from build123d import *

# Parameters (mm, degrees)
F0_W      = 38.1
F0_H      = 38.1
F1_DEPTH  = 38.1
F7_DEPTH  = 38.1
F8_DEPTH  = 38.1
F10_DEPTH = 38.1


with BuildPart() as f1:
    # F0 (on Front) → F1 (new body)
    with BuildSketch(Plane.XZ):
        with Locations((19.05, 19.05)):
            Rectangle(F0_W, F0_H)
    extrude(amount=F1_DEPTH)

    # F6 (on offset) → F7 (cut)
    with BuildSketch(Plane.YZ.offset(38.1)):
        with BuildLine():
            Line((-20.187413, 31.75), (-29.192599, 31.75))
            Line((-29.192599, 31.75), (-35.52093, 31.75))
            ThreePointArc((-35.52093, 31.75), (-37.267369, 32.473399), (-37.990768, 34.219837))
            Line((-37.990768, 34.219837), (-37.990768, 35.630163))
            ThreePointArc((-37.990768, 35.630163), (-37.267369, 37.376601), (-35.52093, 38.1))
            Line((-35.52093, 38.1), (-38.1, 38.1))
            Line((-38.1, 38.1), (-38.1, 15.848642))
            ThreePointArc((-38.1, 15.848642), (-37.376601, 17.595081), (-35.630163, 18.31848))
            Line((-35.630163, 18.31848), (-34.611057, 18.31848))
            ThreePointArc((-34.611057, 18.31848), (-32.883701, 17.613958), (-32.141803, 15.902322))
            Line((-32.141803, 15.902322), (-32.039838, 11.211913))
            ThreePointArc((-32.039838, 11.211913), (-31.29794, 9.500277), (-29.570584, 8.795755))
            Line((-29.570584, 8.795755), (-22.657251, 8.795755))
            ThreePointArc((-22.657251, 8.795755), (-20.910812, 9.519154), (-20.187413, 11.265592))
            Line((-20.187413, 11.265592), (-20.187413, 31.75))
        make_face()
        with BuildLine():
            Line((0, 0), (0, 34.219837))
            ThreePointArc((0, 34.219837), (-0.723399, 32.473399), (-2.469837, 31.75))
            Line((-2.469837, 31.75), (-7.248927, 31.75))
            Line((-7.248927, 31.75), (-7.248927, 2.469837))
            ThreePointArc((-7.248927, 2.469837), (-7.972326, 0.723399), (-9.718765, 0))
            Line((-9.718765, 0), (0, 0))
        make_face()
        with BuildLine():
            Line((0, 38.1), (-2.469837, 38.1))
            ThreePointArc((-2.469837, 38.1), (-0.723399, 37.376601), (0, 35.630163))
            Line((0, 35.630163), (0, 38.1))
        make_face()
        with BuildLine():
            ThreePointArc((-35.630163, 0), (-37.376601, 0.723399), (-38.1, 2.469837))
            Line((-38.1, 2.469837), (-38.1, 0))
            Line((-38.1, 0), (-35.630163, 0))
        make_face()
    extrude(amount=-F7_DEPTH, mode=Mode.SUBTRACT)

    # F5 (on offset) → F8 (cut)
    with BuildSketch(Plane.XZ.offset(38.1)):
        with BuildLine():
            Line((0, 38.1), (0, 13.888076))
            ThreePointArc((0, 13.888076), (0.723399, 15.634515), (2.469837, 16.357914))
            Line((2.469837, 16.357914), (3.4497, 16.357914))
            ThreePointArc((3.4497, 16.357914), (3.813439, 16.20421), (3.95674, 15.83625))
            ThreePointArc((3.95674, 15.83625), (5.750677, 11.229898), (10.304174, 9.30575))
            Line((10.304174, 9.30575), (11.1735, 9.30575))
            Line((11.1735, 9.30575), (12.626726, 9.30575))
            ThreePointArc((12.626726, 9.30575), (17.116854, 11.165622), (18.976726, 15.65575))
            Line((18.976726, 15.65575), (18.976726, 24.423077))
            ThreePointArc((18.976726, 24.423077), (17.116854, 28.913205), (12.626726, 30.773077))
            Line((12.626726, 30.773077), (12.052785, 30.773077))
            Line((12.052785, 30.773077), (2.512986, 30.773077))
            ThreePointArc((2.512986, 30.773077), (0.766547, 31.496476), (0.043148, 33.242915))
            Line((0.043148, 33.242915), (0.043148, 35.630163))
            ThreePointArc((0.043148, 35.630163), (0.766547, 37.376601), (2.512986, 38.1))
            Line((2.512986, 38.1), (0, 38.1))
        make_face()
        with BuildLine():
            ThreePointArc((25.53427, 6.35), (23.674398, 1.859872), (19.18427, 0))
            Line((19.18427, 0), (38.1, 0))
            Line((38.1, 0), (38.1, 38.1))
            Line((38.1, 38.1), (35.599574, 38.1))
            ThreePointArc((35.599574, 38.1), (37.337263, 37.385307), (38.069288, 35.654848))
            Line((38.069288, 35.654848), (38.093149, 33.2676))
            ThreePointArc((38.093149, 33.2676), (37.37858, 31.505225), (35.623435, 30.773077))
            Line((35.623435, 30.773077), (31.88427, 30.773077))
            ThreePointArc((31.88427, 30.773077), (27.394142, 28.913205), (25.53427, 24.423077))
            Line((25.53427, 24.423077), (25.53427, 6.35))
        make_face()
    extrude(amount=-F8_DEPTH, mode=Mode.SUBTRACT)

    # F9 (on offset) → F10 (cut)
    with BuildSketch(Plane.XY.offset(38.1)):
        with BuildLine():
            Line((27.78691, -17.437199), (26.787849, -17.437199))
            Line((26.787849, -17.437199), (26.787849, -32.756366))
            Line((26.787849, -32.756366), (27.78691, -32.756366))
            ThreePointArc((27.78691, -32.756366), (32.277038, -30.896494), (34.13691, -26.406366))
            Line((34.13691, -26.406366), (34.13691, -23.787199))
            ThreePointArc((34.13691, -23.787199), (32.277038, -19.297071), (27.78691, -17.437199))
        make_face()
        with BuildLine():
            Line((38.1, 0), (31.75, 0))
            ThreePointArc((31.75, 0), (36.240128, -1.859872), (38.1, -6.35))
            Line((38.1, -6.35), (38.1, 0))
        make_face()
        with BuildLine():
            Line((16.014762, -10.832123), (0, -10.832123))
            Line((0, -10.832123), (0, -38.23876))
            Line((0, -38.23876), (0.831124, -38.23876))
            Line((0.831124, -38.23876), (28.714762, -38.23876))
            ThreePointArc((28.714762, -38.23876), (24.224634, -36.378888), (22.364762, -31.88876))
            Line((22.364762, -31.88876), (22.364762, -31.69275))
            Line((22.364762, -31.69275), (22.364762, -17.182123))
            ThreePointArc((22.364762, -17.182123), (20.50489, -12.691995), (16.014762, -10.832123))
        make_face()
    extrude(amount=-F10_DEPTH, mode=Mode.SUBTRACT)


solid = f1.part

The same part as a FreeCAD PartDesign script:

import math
import FreeCAD as App
import Part
import Sketcher
Q = App.Units.Quantity

doc = App.newDocument("Part")
body = doc.addObject("PartDesign::Body", "Body")

# Sketch on XZ plane
sketch1 = body.newObject("Sketcher::SketchObject", "Sketch")
sketch1.AttachmentSupport = (doc.getObject("XZ_Plane"), [""])
sketch1.MapMode = "FlatFace"
sketch1.addGeometry(Part.LineSegment(App.Vector(0, 38, 0), App.Vector(0, 0, 0)), False)
sketch1.addGeometry(Part.LineSegment(App.Vector(0, 0, 0), App.Vector(38, 0, 0)), False)
sketch1.addGeometry(Part.LineSegment(App.Vector(38, 0, 0), App.Vector(38, 38, 0)), False)
sketch1.addGeometry(Part.LineSegment(App.Vector(38, 38, 0), App.Vector(0, 38, 0)), False)
sketch1.addConstraint(Sketcher.Constraint("Coincident", 0, 2, 1, 1))
sketch1.addConstraint(Sketcher.Constraint("Coincident", 1, 2, 2, 1))
sketch1.addConstraint(Sketcher.Constraint("Coincident", 2, 2, 3, 1))
sketch1.addConstraint(Sketcher.Constraint("Coincident", 3, 2, 0, 1))
sketch1.addConstraint(Sketcher.Constraint("Vertical", 0))
sketch1.addConstraint(Sketcher.Constraint("Horizontal", 1))
sketch1.addConstraint(Sketcher.Constraint("Vertical", 2))
sketch1.addConstraint(Sketcher.Constraint("Horizontal", 3))
sketch1.addConstraint(Sketcher.Constraint("Coincident", 0, 2, -1, 1))
sketch1.addConstraint(Sketcher.Constraint("Equal", 3, 0))
sketch1.addConstraint(Sketcher.Constraint("DistanceX", 1, 1, 1, 2, Q("1.5 in")))
pad1 = body.newObject("PartDesign::Pad", "Pad")
pad1.Profile = sketch1
pad1.Length = Q("1.5 in")

# Sketch on YZ plane
sketch2 = body.newObject("Sketcher::SketchObject", "Sketch001")
sketch2.AttachmentSupport = (doc.getObject("YZ_Plane"), [""])
sketch2.MapMode = "FlatFace"
sketch2.AttachmentOffset = App.Placement(App.Vector(0, 0, 1.5 * 25.4), App.Rotation())
sketch2.addGeometry(Part.LineSegment(App.Vector(-20.2, 31.8, 0), App.Vector(-35.5, 31.8, 0)), False)
sketch2.addGeometry(Part.ArcOfCircle(Part.Circle(App.Vector(-35.5, 34.2, 0), App.Vector(0, 0, 1), 2.5), math.radians(-180), math.radians(-90)), False)
sketch2.addGeometry(Part.LineSegment(App.Vector(-38, 34.2, 0), App.Vector(-38, 35.6, 0)), False)
sketch2.addGeometry(Part.ArcOfCircle(Part.Circle(App.Vector(-35.5, 35.6, 0), App.Vector(0, 0, 1), 2.5), math.radians(90), math.radians(180)), False)
sketch2.addGeometry(Part.LineSegment(App.Vector(-35.5, 38.1, 0), App.Vector(-38.1, 38.1, 0)), False)
sketch2.addGeometry(Part.LineSegment(App.Vector(-38.1, 38.1, 0), App.Vector(-38.1, 15.8, 0)), False)
sketch2.addGeometry(Part.ArcOfCircle(Part.Circle(App.Vector(-35.6, 15.8, 0), App.Vector(0, 0, 1), 2.5), math.radians(90), math.radians(180)), False)
sketch2.addGeometry(Part.LineSegment(App.Vector(-35.6, 18.3, 0), App.Vector(-34.6, 18.3, 0)), False)
sketch2.addGeometry(Part.ArcOfCircle(Part.Circle(App.Vector(-34.6, 15.8, 0), App.Vector(0, 0, 1), 2.5), math.radians(1), math.radians(90)), False)
sketch2.addGeometry(Part.LineSegment(App.Vector(-32.1, 15.9, 0), App.Vector(-32, 11.2, 0)), False)
sketch2.addGeometry(Part.ArcOfCircle(Part.Circle(App.Vector(-29.6, 11.3, 0), App.Vector(0, 0, 1), 2.5), math.radians(-179), math.radians(-90)), False)
sketch2.addGeometry(Part.LineSegment(App.Vector(-29.6, 8.8, 0), App.Vector(-22.7, 8.8, 0)), False)
sketch2.addGeometry(Part.ArcOfCircle(Part.Circle(App.Vector(-22.7, 11.3, 0), App.Vector(0, 0, 1), 2.5), math.radians(-90), math.radians(0)), False)
sketch2.addGeometry(Part.LineSegment(App.Vector(-20.2, 11.3, 0), App.Vector(-20.2, 31.8, 0)), False)
sketch2.addGeometry(Part.LineSegment(App.Vector(0, 0, 0), App.Vector(0, 34.2, 0)), False)
sketch2.addGeometry(Part.ArcOfCircle(Part.Circle(App.Vector(-2.5, 34.2, 0), App.Vector(0, 0, 1), 2.5), math.radians(-90), math.radians(0)), False)
sketch2.addGeometry(Part.LineSegment(App.Vector(-2.5, 31.8, 0), App.Vector(-7.2, 31.8, 0)), False)
sketch2.addGeometry(Part.LineSegment(App.Vector(-7.2, 31.8, 0), App.Vector(-7.2, 2.5, 0)), False)
sketch2.addGeometry(Part.ArcOfCircle(Part.Circle(App.Vector(-9.7, 2.5, 0), App.Vector(0, 0, 1), 2.5), math.radians(-90), math.radians(0)), False)
sketch2.addGeometry(Part.LineSegment(App.Vector(-9.7, 0, 0), App.Vector(0, 0, 0)), False)
sketch2.addGeometry(Part.LineSegment(App.Vector(0, 38.1, 0), App.Vector(-2.5, 38.1, 0)), False)
sketch2.addGeometry(Part.ArcOfCircle(Part.Circle(App.Vector(-2.5, 35.6, 0), App.Vector(0, 0, 1), 2.5), math.radians(0), math.radians(90)), False)
sketch2.addGeometry(Part.LineSegment(App.Vector(0, 35.6, 0), App.Vector(0, 38.1, 0)), False)
sketch2.addGeometry(Part.ArcOfCircle(Part.Circle(App.Vector(-35.6, 2.5, 0), App.Vector(0, 0, 1), 2.5), math.radians(-180), math.radians(-90)), False)
sketch2.addGeometry(Part.LineSegment(App.Vector(-38.1, 2.5, 0), App.Vector(-38.1, 0, 0)), False)
sketch2.addGeometry(Part.LineSegment(App.Vector(-38.1, 0, 0), App.Vector(-35.6, 0, 0)), False)
sketch2.addConstraint(Sketcher.Constraint("Tangent", 0, 2, 1, 2))
sketch2.addConstraint(Sketcher.Constraint("Tangent", 1, 1, 2, 1))
sketch2.addConstraint(Sketcher.Constraint("Tangent", 2, 2, 3, 2))
sketch2.addConstraint(Sketcher.Constraint("Tangent", 3, 1, 4, 1))
sketch2.addConstraint(Sketcher.Constraint("Coincident", 4, 2, 5, 1))
sketch2.addConstraint(Sketcher.Constraint("Tangent", 5, 2, 6, 2))
sketch2.addConstraint(Sketcher.Constraint("Tangent", 6, 1, 7, 1))
sketch2.addConstraint(Sketcher.Constraint("Tangent", 7, 2, 8, 2))
sketch2.addConstraint(Sketcher.Constraint("Tangent", 8, 1, 9, 1))
sketch2.addConstraint(Sketcher.Constraint("Tangent", 9, 2, 10, 1))
sketch2.addConstraint(Sketcher.Constraint("Tangent", 10, 2, 11, 1))
sketch2.addConstraint(Sketcher.Constraint("Tangent", 11, 2, 12, 1))
sketch2.addConstraint(Sketcher.Constraint("Tangent", 12, 2, 13, 1))
sketch2.addConstraint(Sketcher.Constraint("Coincident", 13, 2, 0, 1))
sketch2.addConstraint(Sketcher.Constraint("Tangent", 14, 2, 15, 2))
sketch2.addConstraint(Sketcher.Constraint("Tangent", 15, 1, 16, 1))
sketch2.addConstraint(Sketcher.Constraint("Coincident", 16, 2, 17, 1))
sketch2.addConstraint(Sketcher.Constraint("Tangent", 17, 2, 18, 2))
sketch2.addConstraint(Sketcher.Constraint("Tangent", 18, 1, 19, 1))
sketch2.addConstraint(Sketcher.Constraint("Coincident", 19, 2, 14, 1))
sketch2.addConstraint(Sketcher.Constraint("Tangent", 20, 2, 21, 2))
sketch2.addConstraint(Sketcher.Constraint("Tangent", 21, 1, 22, 1))
sketch2.addConstraint(Sketcher.Constraint("Coincident", 22, 2, 20, 1))
sketch2.addConstraint(Sketcher.Constraint("Tangent", 23, 1, 24, 1))
sketch2.addConstraint(Sketcher.Constraint("Coincident", 24, 2, 25, 1))
sketch2.addConstraint(Sketcher.Constraint("Tangent", 25, 2, 23, 2))
sketch2.addConstraint(Sketcher.Constraint("Horizontal", 0))
sketch2.addConstraint(Sketcher.Constraint("Vertical", 2))
sketch2.addConstraint(Sketcher.Constraint("Horizontal", 4))
sketch2.addConstraint(Sketcher.Constraint("Vertical", 5))
sketch2.addConstraint(Sketcher.Constraint("Horizontal", 7))
sketch2.addConstraint(Sketcher.Constraint("Horizontal", 11))
sketch2.addConstraint(Sketcher.Constraint("Vertical", 13))
sketch2.addConstraint(Sketcher.Constraint("Vertical", 14))
sketch2.addConstraint(Sketcher.Constraint("Horizontal", 16))
sketch2.addConstraint(Sketcher.Constraint("Vertical", 17))
sketch2.addConstraint(Sketcher.Constraint("Horizontal", 19))
sketch2.addConstraint(Sketcher.Constraint("Horizontal", 20))
sketch2.addConstraint(Sketcher.Constraint("Vertical", 22))
sketch2.addConstraint(Sketcher.Constraint("Vertical", 24))
sketch2.addConstraint(Sketcher.Constraint("Horizontal", 25))
sketch2.addConstraint(Sketcher.Constraint("Coincident", 19, 2, -1, 1))
sketch2.addConstraint(Sketcher.Constraint("Equal", 1, 3))
sketch2.addConstraint(Sketcher.Constraint("Equal", 3, 6))
sketch2.addConstraint(Sketcher.Constraint("Equal", 6, 8))
sketch2.addConstraint(Sketcher.Constraint("Equal", 8, 10))
sketch2.addConstraint(Sketcher.Constraint("Equal", 10, 12))
sketch2.addConstraint(Sketcher.Constraint("Equal", 12, 15))
sketch2.addConstraint(Sketcher.Constraint("Equal", 15, 18))
sketch2.addConstraint(Sketcher.Constraint("Equal", 18, 21))
sketch2.addConstraint(Sketcher.Constraint("Equal", 21, 23))
sketch2.addConstraint(Sketcher.Constraint("PointOnObject", 21, 1, -2))
sketch2.addConstraint(Sketcher.Constraint("PointOnObject", 24, 2, -1))
sketch2.addConstraint(Sketcher.Constraint("Horizontal", 1, 3, 15, 3))
sketch2.addConstraint(Sketcher.Constraint("Horizontal", 3, 3, 21, 3))
sketch2.addConstraint(Sketcher.Constraint("Vertical", 6, 3, 23, 3))
sketch2.addConstraint(Sketcher.Constraint("DistanceY", -1, 1, 3, 1, Q("1.5 in")))
sketch2.addConstraint(Sketcher.Constraint("DistanceX", 4, 2, -1, 1, Q("1.5 in")))
sketch2.addConstraint(Sketcher.Constraint("DistanceY", -1, 1, 0, 2, Q("1.25 in")))
sketch2.addConstraint(Sketcher.Constraint("Radius", 1, Q("2.469839 mm")))
sketch2.addConstraint(Sketcher.Constraint("DistanceY", -1, 1, 6, 1, Q("0.7212 in")))
sketch2.addConstraint(Sketcher.Constraint("DistanceX", 4, 2, 4, 1, Q("2.57907 mm")))
sketch2.addConstraint(Sketcher.Constraint("DistanceX", 16, 2, 16, 1, Q("4.77909 mm")))
sketch2.addConstraint(Sketcher.Constraint("DistanceY", 13, 1, 13, 2, Q("20.484408 mm")))
sketch2.addConstraint(Sketcher.Constraint("DistanceX", 0, 2, 0, 1, Q("15.333517 mm")))
sketch2.addConstraint(Sketcher.Constraint("DistanceX", 7, 1, 7, 2, Q("1.019106 mm")))
sketch2.addConstraint(Sketcher.Constraint("DistanceX", 11, 1, 11, 2, Q("6.913333 mm")))
pocket1 = body.newObject("PartDesign::Pocket", "Pocket")
pocket1.Profile = sketch2
pocket1.Length = Q("1.5 in")

# Sketch on XZ plane
sketch3 = body.newObject("Sketcher::SketchObject", "Sketch002")
sketch3.AttachmentSupport = (doc.getObject("XZ_Plane"), [""])
sketch3.MapMode = "FlatFace"
sketch3.AttachmentOffset = App.Placement(App.Vector(0, 0, 1.5 * 25.4), App.Rotation())
sketch3.addGeometry(Part.LineSegment(App.Vector(0, 38.1, 0), App.Vector(0, 13.9, 0)), False)
sketch3.addGeometry(Part.ArcOfCircle(Part.Circle(App.Vector(2.5, 13.9, 0), App.Vector(0, 0, 1), 2.5), math.radians(90), math.radians(180)), False)
sketch3.addGeometry(Part.LineSegment(App.Vector(2.5, 16.4, 0), App.Vector(3.4, 16.4, 0)), False)
sketch3.addGeometry(Part.ArcOfCircle(Part.Circle(App.Vector(3.4, 15.9, 0), App.Vector(0, 0, 1), 0.5), math.radians(-2), math.radians(90)), False)
sketch3.addGeometry(Part.ArcOfCircle(Part.Circle(App.Vector(10.3, 15.7, 0), App.Vector(0, 0, 1), 6.3), math.radians(178), math.radians(270)), False)
sketch3.addGeometry(Part.LineSegment(App.Vector(10.3, 9.3, 0), App.Vector(12.6, 9.3, 0)), False)
sketch3.addGeometry(Part.ArcOfCircle(Part.Circle(App.Vector(12.6, 15.7, 0), App.Vector(0, 0, 1), 6.4), math.radians(-90), math.radians(0)), False)
sketch3.addGeometry(Part.LineSegment(App.Vector(19, 15.7, 0), App.Vector(19, 24.4, 0)), False)
sketch3.addGeometry(Part.ArcOfCircle(Part.Circle(App.Vector(12.6, 24.4, 0), App.Vector(0, 0, 1), 6.4), math.radians(0), math.radians(90)), False)
sketch3.addGeometry(Part.LineSegment(App.Vector(12.6, 30.8, 0), App.Vector(2.5, 30.8, 0)), False)
sketch3.addGeometry(Part.ArcOfCircle(Part.Circle(App.Vector(2.5, 33.2, 0), App.Vector(0, 0, 1), 2.5), math.radians(-180), math.radians(-90)), False)
sketch3.addGeometry(Part.LineSegment(App.Vector(0, 33.2, 0), App.Vector(0, 35.6, 0)), False)
sketch3.addGeometry(Part.ArcOfCircle(Part.Circle(App.Vector(2.5, 35.6, 0), App.Vector(0, 0, 1), 2.5), math.radians(90), math.radians(180)), False)
sketch3.addGeometry(Part.LineSegment(App.Vector(2.5, 38.1, 0), App.Vector(0, 38.1, 0)), False)
sketch3.addGeometry(Part.ArcOfCircle(Part.Circle(App.Vector(19.2, 6.4, 0), App.Vector(0, 0, 1), 6.4), math.radians(-90), math.radians(0)), False)
sketch3.addGeometry(Part.LineSegment(App.Vector(19.2, 0, 0), App.Vector(38.1, 0, 0)), False)
sketch3.addGeometry(Part.LineSegment(App.Vector(38.1, 0, 0), App.Vector(38.1, 38.1, 0)), False)
sketch3.addGeometry(Part.LineSegment(App.Vector(38.1, 38.1, 0), App.Vector(35.6, 38.1, 0)), False)
sketch3.addGeometry(Part.ArcOfCircle(Part.Circle(App.Vector(35.6, 35.6, 0), App.Vector(0, 0, 1), 2.5), math.radians(1), math.radians(90)), False)
sketch3.addGeometry(Part.LineSegment(App.Vector(38.1, 35.7, 0), App.Vector(38.1, 33.3, 0)), False)
sketch3.addGeometry(Part.ArcOfCircle(Part.Circle(App.Vector(35.6, 33.2, 0), App.Vector(0, 0, 1), 2.5), math.radians(-90), math.radians(1)), False)
sketch3.addGeometry(Part.LineSegment(App.Vector(35.6, 30.8, 0), App.Vector(31.9, 30.8, 0)), False)
sketch3.addGeometry(Part.ArcOfCircle(Part.Circle(App.Vector(31.9, 24.4, 0), App.Vector(0, 0, 1), 6.4), math.radians(90), math.radians(180)), False)
sketch3.addGeometry(Part.LineSegment(App.Vector(25.5, 24.4, 0), App.Vector(25.5, 6.3, 0)), False)
sketch3.addConstraint(Sketcher.Constraint("Tangent", 0, 2, 1, 2))
sketch3.addConstraint(Sketcher.Constraint("Tangent", 1, 1, 2, 1))
sketch3.addConstraint(Sketcher.Constraint("Tangent", 2, 2, 3, 2))
sketch3.addConstraint(Sketcher.Constraint("Tangent", 3, 1, 4, 1))
sketch3.addConstraint(Sketcher.Constraint("Tangent", 4, 2, 5, 1))
sketch3.addConstraint(Sketcher.Constraint("Tangent", 5, 2, 6, 1))
sketch3.addConstraint(Sketcher.Constraint("Tangent", 6, 2, 7, 1))
sketch3.addConstraint(Sketcher.Constraint("Tangent", 7, 2, 8, 1))
sketch3.addConstraint(Sketcher.Constraint("Tangent", 8, 2, 9, 1))
sketch3.addConstraint(Sketcher.Constraint("Tangent", 9, 2, 10, 2))
sketch3.addConstraint(Sketcher.Constraint("Tangent", 10, 1, 11, 1))
sketch3.addConstraint(Sketcher.Constraint("Tangent", 11, 2, 12, 2))
sketch3.addConstraint(Sketcher.Constraint("Tangent", 12, 1, 13, 1))
sketch3.addConstraint(Sketcher.Constraint("Coincident", 13, 2, 0, 1))
sketch3.addConstraint(Sketcher.Constraint("Tangent", 14, 1, 15, 1))
sketch3.addConstraint(Sketcher.Constraint("Coincident", 15, 2, 16, 1))
sketch3.addConstraint(Sketcher.Constraint("Coincident", 16, 2, 17, 1))
sketch3.addConstraint(Sketcher.Constraint("Tangent", 17, 2, 18, 2))
sketch3.addConstraint(Sketcher.Constraint("Tangent", 18, 1, 19, 1))
sketch3.addConstraint(Sketcher.Constraint("Tangent", 19, 2, 20, 2))
sketch3.addConstraint(Sketcher.Constraint("Tangent", 20, 1, 21, 1))
sketch3.addConstraint(Sketcher.Constraint("Tangent", 21, 2, 22, 1))
sketch3.addConstraint(Sketcher.Constraint("Tangent", 22, 2, 23, 1))
sketch3.addConstraint(Sketcher.Constraint("Tangent", 23, 2, 14, 2))
sketch3.addConstraint(Sketcher.Constraint("Vertical", 0))
sketch3.addConstraint(Sketcher.Constraint("Horizontal", 2))
sketch3.addConstraint(Sketcher.Constraint("Horizontal", 5))
sketch3.addConstraint(Sketcher.Constraint("Vertical", 7))
sketch3.addConstraint(Sketcher.Constraint("Horizontal", 9))
sketch3.addConstraint(Sketcher.Constraint("Vertical", 11))
sketch3.addConstraint(Sketcher.Constraint("Horizontal", 13))
sketch3.addConstraint(Sketcher.Constraint("Horizontal", 15))
sketch3.addConstraint(Sketcher.Constraint("Vertical", 16))
sketch3.addConstraint(Sketcher.Constraint("Horizontal", 17))
sketch3.addConstraint(Sketcher.Constraint("Horizontal", 21))
sketch3.addConstraint(Sketcher.Constraint("Vertical", 23))
sketch3.addConstraint(Sketcher.Constraint("Equal", 4, 6))
sketch3.addConstraint(Sketcher.Constraint("Equal", 6, 8))
sketch3.addConstraint(Sketcher.Constraint("Equal", 1, 10))
sketch3.addConstraint(Sketcher.Constraint("Equal", 10, 12))
sketch3.addConstraint(Sketcher.Constraint("Equal", 8, 14))
sketch3.addConstraint(Sketcher.Constraint("Equal", 12, 18))
sketch3.addConstraint(Sketcher.Constraint("Equal", 18, 20))
sketch3.addConstraint(Sketcher.Constraint("Equal", 14, 22))
sketch3.addConstraint(Sketcher.Constraint("PointOnObject", 0, 2, -2))
sketch3.addConstraint(Sketcher.Constraint("PointOnObject", 14, 1, -1))
sketch3.addConstraint(Sketcher.Constraint("Horizontal", 12, 3, 18, 3))
sketch3.addConstraint(Sketcher.Constraint("Horizontal", 8, 3, 22, 3))
sketch3.addConstraint(Sketcher.Constraint("Radius", 4, Q("0.25 in")))
sketch3.addConstraint(Sketcher.Constraint("DistanceY", 16, 1, 16, 2, Q("1.5 in")))
sketch3.addConstraint(Sketcher.Constraint("DistanceX", -1, 1, 15, 2, Q("1.5 in")))
sketch3.addConstraint(Sketcher.Constraint("Radius", 1, Q("2.469839 mm")))
sketch3.addConstraint(Sketcher.Constraint("Radius", 3, Q("0.507245 mm")))
sketch3.addConstraint(Sketcher.Constraint("DistanceX", 5, 1, 5, 2, Q("2.322552 mm")))
sketch3.addConstraint(Sketcher.Constraint("DistanceX", 9, 2, 9, 1, Q("10.11374 mm")))
sketch3.addConstraint(Sketcher.Constraint("DistanceX", 15, 1, 15, 2, Q("18.91573 mm")))
sketch3.addConstraint(Sketcher.Constraint("DistanceX", -1, 1, 3, 3, Q("3.4497 mm")))
sketch3.addConstraint(Sketcher.Constraint("DistanceY", -1, 1, 19, 2, Q("33.2676 mm")))
sketch3.addConstraint(Sketcher.Constraint("DistanceY", 1, 3, 8, 3, Q("10.535001 mm")))
sketch3.addConstraint(Sketcher.Constraint("DistanceX", 4, 3, 18, 3, Q("25.295399 mm")))
sketch3.addConstraint(Sketcher.Constraint("DistanceY", 4, 2, 3, 1, Q("6.5305 mm")))
sketch3.addConstraint(Sketcher.Constraint("DistanceX", 21, 2, 21, 1, Q("3.739165 mm")))
pocket2 = body.newObject("PartDesign::Pocket", "Pocket001")
pocket2.Profile = sketch3
pocket2.Length = Q("1.5 in")

# Sketch on XY plane
sketch4 = body.newObject("Sketcher::SketchObject", "Sketch003")
sketch4.AttachmentSupport = (doc.getObject("XY_Plane"), [""])
sketch4.MapMode = "FlatFace"
sketch4.AttachmentOffset = App.Placement(App.Vector(0, 0, 1.5 * 25.4), App.Rotation())
sketch4.addGeometry(Part.LineSegment(App.Vector(27.8, -17.4, 0), App.Vector(26.8, -17.4, 0)), False)
sketch4.addGeometry(Part.LineSegment(App.Vector(26.8, -17.4, 0), App.Vector(26.8, -32.8, 0)), False)
sketch4.addGeometry(Part.LineSegment(App.Vector(26.8, -32.8, 0), App.Vector(27.8, -32.8, 0)), False)
sketch4.addGeometry(Part.ArcOfCircle(Part.Circle(App.Vector(27.8, -26.4, 0), App.Vector(0, 0, 1), 6.4), math.radians(-90), math.radians(0)), False)
sketch4.addGeometry(Part.LineSegment(App.Vector(34.1, -26.4, 0), App.Vector(34.1, -23.8, 0)), False)
sketch4.addGeometry(Part.ArcOfCircle(Part.Circle(App.Vector(27.8, -23.8, 0), App.Vector(0, 0, 1), 6.4), math.radians(0), math.radians(90)), False)
sketch4.addGeometry(Part.LineSegment(App.Vector(38.1, 0, 0), App.Vector(31.8, 0, 0)), False)
sketch4.addGeometry(Part.ArcOfCircle(Part.Circle(App.Vector(31.7, -6.4, 0), App.Vector(0, 0, 1), 6.4), math.radians(0), math.radians(90)), False)
sketch4.addGeometry(Part.LineSegment(App.Vector(38.1, -6.3, 0), App.Vector(38.1, 0, 0)), False)
sketch4.addGeometry(Part.LineSegment(App.Vector(16, -10.8, 0), App.Vector(0, -10.8, 0)), False)
sketch4.addGeometry(Part.LineSegment(App.Vector(0, -10.8, 0), App.Vector(0, -38.2, 0)), False)
sketch4.addGeometry(Part.LineSegment(App.Vector(0, -38.2, 0), App.Vector(28.7, -38.2, 0)), False)
sketch4.addGeometry(Part.ArcOfCircle(Part.Circle(App.Vector(28.7, -31.9, 0), App.Vector(0, 0, 1), 6.4), math.radians(-180), math.radians(-90)), False)
sketch4.addGeometry(Part.LineSegment(App.Vector(22.4, -31.9, 0), App.Vector(22.4, -17.2, 0)), False)
sketch4.addGeometry(Part.ArcOfCircle(Part.Circle(App.Vector(16, -17.2, 0), App.Vector(0, 0, 1), 6.4), math.radians(0), math.radians(90)), False)
sketch4.addConstraint(Sketcher.Constraint("Coincident", 0, 2, 1, 1))
sketch4.addConstraint(Sketcher.Constraint("Coincident", 1, 2, 2, 1))
sketch4.addConstraint(Sketcher.Constraint("Tangent", 2, 2, 3, 1))
sketch4.addConstraint(Sketcher.Constraint("Tangent", 3, 2, 4, 1))
sketch4.addConstraint(Sketcher.Constraint("Tangent", 4, 2, 5, 1))
sketch4.addConstraint(Sketcher.Constraint("Tangent", 5, 2, 0, 1))
sketch4.addConstraint(Sketcher.Constraint("Tangent", 6, 2, 7, 2))
sketch4.addConstraint(Sketcher.Constraint("Tangent", 7, 1, 8, 1))
sketch4.addConstraint(Sketcher.Constraint("Coincident", 8, 2, 6, 1))
sketch4.addConstraint(Sketcher.Constraint("Coincident", 9, 2, 10, 1))
sketch4.addConstraint(Sketcher.Constraint("Coincident", 10, 2, 11, 1))
sketch4.addConstraint(Sketcher.Constraint("Tangent", 11, 2, 12, 2))
sketch4.addConstraint(Sketcher.Constraint("Tangent", 12, 1, 13, 1))
sketch4.addConstraint(Sketcher.Constraint("Tangent", 13, 2, 14, 1))
sketch4.addConstraint(Sketcher.Constraint("Tangent", 14, 2, 9, 1))
sketch4.addConstraint(Sketcher.Constraint("Horizontal", 0))
sketch4.addConstraint(Sketcher.Constraint("Vertical", 1))
sketch4.addConstraint(Sketcher.Constraint("Horizontal", 2))
sketch4.addConstraint(Sketcher.Constraint("Vertical", 4))
sketch4.addConstraint(Sketcher.Constraint("Horizontal", 6))
sketch4.addConstraint(Sketcher.Constraint("Vertical", 8))
sketch4.addConstraint(Sketcher.Constraint("Horizontal", 9))
sketch4.addConstraint(Sketcher.Constraint("Vertical", 10))
sketch4.addConstraint(Sketcher.Constraint("Horizontal", 11))
sketch4.addConstraint(Sketcher.Constraint("Vertical", 13))
sketch4.addConstraint(Sketcher.Constraint("Equal", 3, 5))
sketch4.addConstraint(Sketcher.Constraint("Equal", 5, 7))
sketch4.addConstraint(Sketcher.Constraint("Equal", 7, 12))
sketch4.addConstraint(Sketcher.Constraint("Equal", 12, 14))
sketch4.addConstraint(Sketcher.Constraint("PointOnObject", 6, 2, -1))
sketch4.addConstraint(Sketcher.Constraint("PointOnObject", 9, 2, -2))
sketch4.addConstraint(Sketcher.Constraint("Radius", 3, Q("0.25 in")))
sketch4.addConstraint(Sketcher.Constraint("DistanceX", -1, 1, 7, 1, Q("1.5 in")))
sketch4.addConstraint(Sketcher.Constraint("DistanceX", 0, 2, 0, 1, Q("0.999061 mm")))
sketch4.addConstraint(Sketcher.Constraint("DistanceY", 5, 3, -1, 1, Q("23.787199 mm")))
sketch4.addConstraint(Sketcher.Constraint("DistanceX", 9, 2, 9, 1, Q("16.014762 mm")))
sketch4.addConstraint(Sketcher.Constraint("DistanceY", 1, 2, 1, 1, Q("15.319167 mm")))
sketch4.addConstraint(Sketcher.Constraint("DistanceY", 10, 2, 10, 1, Q("27.406637 mm")))
sketch4.addConstraint(Sketcher.Constraint("DistanceX", -1, 1, 3, 3, Q("27.78691 mm")))
sketch4.addConstraint(Sketcher.Constraint("DistanceY", 12, 3, -1, 1, Q("31.88876 mm")))
pocket3 = body.newObject("PartDesign::Pocket", "Pocket002")
pocket3.Profile = sketch4
pocket3.Length = Q("1.5 in")

doc.recompute()
